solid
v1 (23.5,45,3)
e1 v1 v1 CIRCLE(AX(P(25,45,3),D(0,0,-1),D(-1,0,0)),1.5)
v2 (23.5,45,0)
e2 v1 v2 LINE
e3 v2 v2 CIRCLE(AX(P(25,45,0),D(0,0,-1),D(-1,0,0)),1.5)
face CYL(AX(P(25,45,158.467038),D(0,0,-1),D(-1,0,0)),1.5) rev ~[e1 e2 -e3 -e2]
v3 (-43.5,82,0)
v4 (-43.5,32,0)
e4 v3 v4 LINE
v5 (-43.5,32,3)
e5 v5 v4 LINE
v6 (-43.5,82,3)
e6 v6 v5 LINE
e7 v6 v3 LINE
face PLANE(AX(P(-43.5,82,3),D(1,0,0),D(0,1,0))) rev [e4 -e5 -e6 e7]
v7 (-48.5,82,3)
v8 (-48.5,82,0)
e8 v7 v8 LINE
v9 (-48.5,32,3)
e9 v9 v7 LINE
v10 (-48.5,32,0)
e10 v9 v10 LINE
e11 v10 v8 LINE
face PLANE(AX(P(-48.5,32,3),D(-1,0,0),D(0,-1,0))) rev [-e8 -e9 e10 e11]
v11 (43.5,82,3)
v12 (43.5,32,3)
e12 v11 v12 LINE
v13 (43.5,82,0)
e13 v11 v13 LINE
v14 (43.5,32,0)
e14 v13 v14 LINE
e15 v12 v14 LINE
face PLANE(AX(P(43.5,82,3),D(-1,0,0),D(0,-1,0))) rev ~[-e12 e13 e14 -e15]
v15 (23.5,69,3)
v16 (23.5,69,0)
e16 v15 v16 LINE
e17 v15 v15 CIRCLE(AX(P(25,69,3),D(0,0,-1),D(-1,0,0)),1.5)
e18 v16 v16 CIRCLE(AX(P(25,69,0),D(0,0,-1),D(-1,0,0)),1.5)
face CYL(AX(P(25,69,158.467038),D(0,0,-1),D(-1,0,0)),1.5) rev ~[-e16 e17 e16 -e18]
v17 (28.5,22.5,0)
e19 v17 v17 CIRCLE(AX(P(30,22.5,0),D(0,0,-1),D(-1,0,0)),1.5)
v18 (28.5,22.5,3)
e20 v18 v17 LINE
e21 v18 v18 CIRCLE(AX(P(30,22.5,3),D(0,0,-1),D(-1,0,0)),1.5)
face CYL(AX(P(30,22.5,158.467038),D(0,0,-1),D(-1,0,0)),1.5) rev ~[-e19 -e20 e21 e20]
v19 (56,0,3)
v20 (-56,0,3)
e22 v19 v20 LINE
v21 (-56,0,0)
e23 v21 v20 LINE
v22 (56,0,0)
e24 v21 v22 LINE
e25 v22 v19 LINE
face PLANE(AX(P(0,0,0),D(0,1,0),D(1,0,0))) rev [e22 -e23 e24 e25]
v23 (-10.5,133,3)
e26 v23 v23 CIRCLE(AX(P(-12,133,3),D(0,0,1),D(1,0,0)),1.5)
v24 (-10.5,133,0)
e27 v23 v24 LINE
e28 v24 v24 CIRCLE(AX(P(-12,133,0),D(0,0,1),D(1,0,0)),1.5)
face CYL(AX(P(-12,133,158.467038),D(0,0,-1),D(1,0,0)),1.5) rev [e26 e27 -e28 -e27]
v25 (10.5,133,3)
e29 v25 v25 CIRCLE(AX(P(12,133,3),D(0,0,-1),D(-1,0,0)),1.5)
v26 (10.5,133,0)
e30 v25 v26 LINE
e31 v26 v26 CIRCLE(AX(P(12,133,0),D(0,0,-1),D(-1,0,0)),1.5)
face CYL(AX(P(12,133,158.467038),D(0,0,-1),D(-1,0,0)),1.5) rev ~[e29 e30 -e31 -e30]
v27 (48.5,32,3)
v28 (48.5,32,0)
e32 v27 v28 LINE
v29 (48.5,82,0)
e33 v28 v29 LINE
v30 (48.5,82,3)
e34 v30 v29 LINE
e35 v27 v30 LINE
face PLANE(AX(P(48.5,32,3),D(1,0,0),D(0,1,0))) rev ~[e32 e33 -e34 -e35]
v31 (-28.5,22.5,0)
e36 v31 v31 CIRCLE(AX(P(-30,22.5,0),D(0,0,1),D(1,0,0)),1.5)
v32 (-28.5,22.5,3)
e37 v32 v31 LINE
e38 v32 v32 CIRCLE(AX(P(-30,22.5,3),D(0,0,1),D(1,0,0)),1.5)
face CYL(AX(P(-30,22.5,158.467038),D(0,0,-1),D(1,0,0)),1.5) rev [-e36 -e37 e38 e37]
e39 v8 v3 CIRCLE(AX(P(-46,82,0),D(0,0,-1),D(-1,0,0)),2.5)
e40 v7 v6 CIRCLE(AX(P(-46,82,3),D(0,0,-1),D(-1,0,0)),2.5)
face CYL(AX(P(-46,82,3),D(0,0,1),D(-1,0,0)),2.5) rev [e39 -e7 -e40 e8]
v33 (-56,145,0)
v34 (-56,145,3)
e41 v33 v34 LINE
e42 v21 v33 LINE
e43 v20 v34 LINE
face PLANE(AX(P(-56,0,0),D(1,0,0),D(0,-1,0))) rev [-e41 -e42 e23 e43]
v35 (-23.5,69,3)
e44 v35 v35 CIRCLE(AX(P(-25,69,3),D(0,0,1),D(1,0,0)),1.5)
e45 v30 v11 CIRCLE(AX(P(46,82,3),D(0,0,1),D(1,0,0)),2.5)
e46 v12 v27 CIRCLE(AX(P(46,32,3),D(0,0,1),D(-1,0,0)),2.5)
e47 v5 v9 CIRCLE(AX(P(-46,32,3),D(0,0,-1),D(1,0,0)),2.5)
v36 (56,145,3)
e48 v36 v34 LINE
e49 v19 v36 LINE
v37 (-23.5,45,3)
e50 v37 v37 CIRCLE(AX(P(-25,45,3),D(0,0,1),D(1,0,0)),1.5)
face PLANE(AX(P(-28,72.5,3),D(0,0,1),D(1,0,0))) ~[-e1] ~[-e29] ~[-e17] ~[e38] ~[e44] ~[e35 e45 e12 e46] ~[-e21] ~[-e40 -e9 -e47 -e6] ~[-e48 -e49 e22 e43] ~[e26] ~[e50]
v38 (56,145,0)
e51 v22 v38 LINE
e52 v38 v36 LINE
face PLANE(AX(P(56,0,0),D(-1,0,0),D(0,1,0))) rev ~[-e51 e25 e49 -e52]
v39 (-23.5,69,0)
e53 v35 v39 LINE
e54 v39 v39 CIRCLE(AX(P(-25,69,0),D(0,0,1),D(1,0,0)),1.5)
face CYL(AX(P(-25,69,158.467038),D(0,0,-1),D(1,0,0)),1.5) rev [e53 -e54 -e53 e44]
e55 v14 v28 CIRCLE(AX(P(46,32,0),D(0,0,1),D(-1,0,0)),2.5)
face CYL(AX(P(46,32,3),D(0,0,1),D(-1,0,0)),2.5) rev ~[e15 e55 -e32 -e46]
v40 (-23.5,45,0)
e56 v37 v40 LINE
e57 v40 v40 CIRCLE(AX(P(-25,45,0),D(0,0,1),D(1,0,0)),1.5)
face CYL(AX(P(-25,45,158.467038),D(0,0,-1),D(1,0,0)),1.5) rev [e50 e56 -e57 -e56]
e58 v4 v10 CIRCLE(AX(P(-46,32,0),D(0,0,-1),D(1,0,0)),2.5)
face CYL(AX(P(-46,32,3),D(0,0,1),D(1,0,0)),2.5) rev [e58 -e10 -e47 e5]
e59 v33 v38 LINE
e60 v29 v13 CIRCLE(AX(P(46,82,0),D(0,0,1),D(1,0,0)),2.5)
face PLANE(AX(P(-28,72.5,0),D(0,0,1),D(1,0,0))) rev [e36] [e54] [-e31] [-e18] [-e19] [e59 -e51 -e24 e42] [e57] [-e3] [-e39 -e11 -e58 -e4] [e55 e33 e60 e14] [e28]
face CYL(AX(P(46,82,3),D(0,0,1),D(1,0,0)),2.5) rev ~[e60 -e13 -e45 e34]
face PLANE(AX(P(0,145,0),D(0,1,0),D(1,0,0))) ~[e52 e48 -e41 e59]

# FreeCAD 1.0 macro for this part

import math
import FreeCAD as App
import Part
import Sketcher

doc = App.newDocument("Part")
body = doc.addObject("PartDesign::Body", "Body")

sketch1 = body.newObject("Sketcher::SketchObject", "Sketch")
sketch1.AttachmentSupport = (doc.getObject("XY_Plane"), [""])
sketch1.MapMode = "FlatFace"
sketch1.addGeometry([
    Part.LineSegment(App.Vector(0, 145, 0), App.Vector(0, 0, 0)),
    Part.LineSegment(App.Vector(0, 0, 0), App.Vector(56, 0, 0)),
    Part.LineSegment(App.Vector(56, 0, 0), App.Vector(56, 145, 0)),
    Part.LineSegment(App.Vector(56, 145, 0), App.Vector(0, 145, 0)),
], False)
sketch1.addConstraint([
    Sketcher.Constraint("Coincident", 0, 2, 1, 1),
    Sketcher.Constraint("Coincident", 1, 2, 2, 1),
    Sketcher.Constraint("Coincident", 2, 2, 3, 1),
    Sketcher.Constraint("Coincident", 3, 2, 0, 1),
    Sketcher.Constraint("Vertical", 0),
    Sketcher.Constraint("Horizontal", 1),
    Sketcher.Constraint("Vertical", 2),
    Sketcher.Constraint("Horizontal", 3),
    Sketcher.Constraint("Coincident", 0, 2, -1, 1),
    Sketcher.Constraint("DistanceX", 1, 1, 1, 2, 56.0),
    Sketcher.Constraint("DistanceY", 0, 2, 0, 1, 145.0),
])
pad1 = body.newObject("PartDesign::Pad", "Pad")
pad1.Profile = sketch1
pad1.Length = 3

sketch2 = body.newObject("Sketcher::SketchObject", "Sketch001")
sketch2.AttachmentSupport = (doc.getObject("XY_Plane"), [""])
sketch2.MapMode = "FlatFace"
sketch2.AttachmentOffset = App.Placement(App.Vector(0, 0, 3), App.Rotation())
sketch2.addGeometry([
    Part.Circle(App.Vector(25, 69, 0), App.Vector(0, 0, 1), 1.5),
    Part.Circle(App.Vector(25, 45, 0), App.Vector(0, 0, 1), 1.5),
], False)
sketch2.addConstraint([
    Sketcher.Constraint("Equal", 0, 1),
    Sketcher.Constraint("Vertical", 0, 3, 1, 3),
    Sketcher.Constraint("Diameter", 0, 3.0),
    Sketcher.Constraint("DistanceX", -1, 1, 0, 3, 25.0),
    Sketcher.Constraint("DistanceY", -1, 1, 0, 3, 69.0),
    Sketcher.Constraint("DistanceY", -1, 1, 1, 3, 45.0),
])
doc.recompute()
hole = body.newObject("PartDesign::Hole", "Hole")
hole.Profile = sketch2
hole.ThreadType = "None"
hole.Diameter = 3
hole.DepthType = "ThroughAll"

sketch3 = body.newObject("Sketcher::SketchObject", "Sketch002")
sketch3.AttachmentSupport = (doc.getObject("XY_Plane"), [""])
sketch3.MapMode = "FlatFace"
sketch3.AttachmentOffset = App.Placement(App.Vector(0, 0, 3), App.Rotation())
sketch3.addGeometry([
    Part.ArcOfCircle(Part.Circle(App.Vector(46, 82, 0), App.Vector(0, 0, 1), 2.5), math.radians(0), math.radians(180)),
    Part.LineSegment(App.Vector(43.5, 82, 0), App.Vector(43.5, 32, 0)),
    Part.ArcOfCircle(Part.Circle(App.Vector(46, 32, 0), App.Vector(0, 0, 1), 2.5), math.radians(180), math.radians(360)),
    Part.LineSegment(App.Vector(48.5, 32, 0), App.Vector(48.5, 82, 0)),
], False)
sketch3.addConstraint([
    Sketcher.Constraint("Tangent", 0, 2, 1, 1),
    Sketcher.Constraint("Tangent", 1, 2, 2, 1),
    Sketcher.Constraint("Tangent", 2, 2, 3, 1),
    Sketcher.Constraint("Tangent", 3, 2, 0, 1),
    Sketcher.Constraint("Vertical", 1),
    Sketcher.Constraint("Vertical", 3),
    Sketcher.Constraint("Radius", 0, 2.5),
    Sketcher.Constraint("DistanceY", 1, 2, 1, 1, 50.0),
    Sketcher.Constraint("DistanceX", -1, 1, 0, 3, 46.0),
    Sketcher.Constraint("DistanceY", -1, 1, 0, 3, 82.0),
])
pocket1 = body.newObject("PartDesign::Pocket", "Pocket")
pocket1.Profile = sketch3
pocket1.Length = 25

sketch4 = body.newObject("Sketcher::SketchObject", "Sketch003")
sketch4.AttachmentSupport = (doc.getObject("XY_Plane"), [""])
sketch4.MapMode = "FlatFace"
sketch4.AttachmentOffset = App.Placement(App.Vector(0, 0, 3), App.Rotation())
sketch4.addGeometry(Part.Circle(App.Vector(12, 133, 0), App.Vector(0, 0, 1), 1.5), False)
sketch4.addConstraint([
    Sketcher.Constraint("Diameter", 0, 3.0),
    Sketcher.Constraint("DistanceX", -1, 1, 0, 3, 12.0),
    Sketcher.Constraint("DistanceY", -1, 1, 0, 3, 133.0),
])
doc.recompute()
hole2 = body.newObject("PartDesign::Hole", "Hole001")
hole2.Profile = sketch4
hole2.ThreadType = "None"
hole2.Diameter = 3
hole2.DepthType = "ThroughAll"

sketch5 = body.newObject("Sketcher::SketchObject", "Sketch004")
sketch5.AttachmentSupport = (doc.getObject("XY_Plane"), [""])
sketch5.MapMode = "FlatFace"
sketch5.AttachmentOffset = App.Placement(App.Vector(0, 0, 3), App.Rotation())
sketch5.addGeometry(Part.Circle(App.Vector(30, 22.5, 0), App.Vector(0, 0, 1), 1.5), False)
sketch5.addConstraint([
    Sketcher.Constraint("Diameter", 0, 3.0),
    Sketcher.Constraint("DistanceX", -1, 1, 0, 3, 30.0),
    Sketcher.Constraint("DistanceY", -1, 1, 0, 3, 22.5),
])
doc.recompute()
hole3 = body.newObject("PartDesign::Hole", "Hole002")
hole3.Profile = sketch5
hole3.ThreadType = "None"
hole3.Diameter = 3
hole3.DepthType = "ThroughAll"
body2 = doc.addObject("PartDesign::Body", "Body001")
doc.recompute()

body2.BaseFeature = body
doc.recompute()

mirroring = doc.addObject("Part::Mirroring", "Mirroring")
mirroring.Source = body
mirroring.Base = App.Vector(0, 0, 0)
mirroring.Normal = App.Vector(1, 0, 0)
body3 = doc.addObject("PartDesign::Body", "Body002")
body3.BaseFeature = mirroring
boolean = body2.newObject("PartDesign::Boolean", "Boolean")
boolean.Type = "Fuse"
boolean.addObjects([body3])
doc.recompute()
mirroring.Visibility = False

doc.recompute()
